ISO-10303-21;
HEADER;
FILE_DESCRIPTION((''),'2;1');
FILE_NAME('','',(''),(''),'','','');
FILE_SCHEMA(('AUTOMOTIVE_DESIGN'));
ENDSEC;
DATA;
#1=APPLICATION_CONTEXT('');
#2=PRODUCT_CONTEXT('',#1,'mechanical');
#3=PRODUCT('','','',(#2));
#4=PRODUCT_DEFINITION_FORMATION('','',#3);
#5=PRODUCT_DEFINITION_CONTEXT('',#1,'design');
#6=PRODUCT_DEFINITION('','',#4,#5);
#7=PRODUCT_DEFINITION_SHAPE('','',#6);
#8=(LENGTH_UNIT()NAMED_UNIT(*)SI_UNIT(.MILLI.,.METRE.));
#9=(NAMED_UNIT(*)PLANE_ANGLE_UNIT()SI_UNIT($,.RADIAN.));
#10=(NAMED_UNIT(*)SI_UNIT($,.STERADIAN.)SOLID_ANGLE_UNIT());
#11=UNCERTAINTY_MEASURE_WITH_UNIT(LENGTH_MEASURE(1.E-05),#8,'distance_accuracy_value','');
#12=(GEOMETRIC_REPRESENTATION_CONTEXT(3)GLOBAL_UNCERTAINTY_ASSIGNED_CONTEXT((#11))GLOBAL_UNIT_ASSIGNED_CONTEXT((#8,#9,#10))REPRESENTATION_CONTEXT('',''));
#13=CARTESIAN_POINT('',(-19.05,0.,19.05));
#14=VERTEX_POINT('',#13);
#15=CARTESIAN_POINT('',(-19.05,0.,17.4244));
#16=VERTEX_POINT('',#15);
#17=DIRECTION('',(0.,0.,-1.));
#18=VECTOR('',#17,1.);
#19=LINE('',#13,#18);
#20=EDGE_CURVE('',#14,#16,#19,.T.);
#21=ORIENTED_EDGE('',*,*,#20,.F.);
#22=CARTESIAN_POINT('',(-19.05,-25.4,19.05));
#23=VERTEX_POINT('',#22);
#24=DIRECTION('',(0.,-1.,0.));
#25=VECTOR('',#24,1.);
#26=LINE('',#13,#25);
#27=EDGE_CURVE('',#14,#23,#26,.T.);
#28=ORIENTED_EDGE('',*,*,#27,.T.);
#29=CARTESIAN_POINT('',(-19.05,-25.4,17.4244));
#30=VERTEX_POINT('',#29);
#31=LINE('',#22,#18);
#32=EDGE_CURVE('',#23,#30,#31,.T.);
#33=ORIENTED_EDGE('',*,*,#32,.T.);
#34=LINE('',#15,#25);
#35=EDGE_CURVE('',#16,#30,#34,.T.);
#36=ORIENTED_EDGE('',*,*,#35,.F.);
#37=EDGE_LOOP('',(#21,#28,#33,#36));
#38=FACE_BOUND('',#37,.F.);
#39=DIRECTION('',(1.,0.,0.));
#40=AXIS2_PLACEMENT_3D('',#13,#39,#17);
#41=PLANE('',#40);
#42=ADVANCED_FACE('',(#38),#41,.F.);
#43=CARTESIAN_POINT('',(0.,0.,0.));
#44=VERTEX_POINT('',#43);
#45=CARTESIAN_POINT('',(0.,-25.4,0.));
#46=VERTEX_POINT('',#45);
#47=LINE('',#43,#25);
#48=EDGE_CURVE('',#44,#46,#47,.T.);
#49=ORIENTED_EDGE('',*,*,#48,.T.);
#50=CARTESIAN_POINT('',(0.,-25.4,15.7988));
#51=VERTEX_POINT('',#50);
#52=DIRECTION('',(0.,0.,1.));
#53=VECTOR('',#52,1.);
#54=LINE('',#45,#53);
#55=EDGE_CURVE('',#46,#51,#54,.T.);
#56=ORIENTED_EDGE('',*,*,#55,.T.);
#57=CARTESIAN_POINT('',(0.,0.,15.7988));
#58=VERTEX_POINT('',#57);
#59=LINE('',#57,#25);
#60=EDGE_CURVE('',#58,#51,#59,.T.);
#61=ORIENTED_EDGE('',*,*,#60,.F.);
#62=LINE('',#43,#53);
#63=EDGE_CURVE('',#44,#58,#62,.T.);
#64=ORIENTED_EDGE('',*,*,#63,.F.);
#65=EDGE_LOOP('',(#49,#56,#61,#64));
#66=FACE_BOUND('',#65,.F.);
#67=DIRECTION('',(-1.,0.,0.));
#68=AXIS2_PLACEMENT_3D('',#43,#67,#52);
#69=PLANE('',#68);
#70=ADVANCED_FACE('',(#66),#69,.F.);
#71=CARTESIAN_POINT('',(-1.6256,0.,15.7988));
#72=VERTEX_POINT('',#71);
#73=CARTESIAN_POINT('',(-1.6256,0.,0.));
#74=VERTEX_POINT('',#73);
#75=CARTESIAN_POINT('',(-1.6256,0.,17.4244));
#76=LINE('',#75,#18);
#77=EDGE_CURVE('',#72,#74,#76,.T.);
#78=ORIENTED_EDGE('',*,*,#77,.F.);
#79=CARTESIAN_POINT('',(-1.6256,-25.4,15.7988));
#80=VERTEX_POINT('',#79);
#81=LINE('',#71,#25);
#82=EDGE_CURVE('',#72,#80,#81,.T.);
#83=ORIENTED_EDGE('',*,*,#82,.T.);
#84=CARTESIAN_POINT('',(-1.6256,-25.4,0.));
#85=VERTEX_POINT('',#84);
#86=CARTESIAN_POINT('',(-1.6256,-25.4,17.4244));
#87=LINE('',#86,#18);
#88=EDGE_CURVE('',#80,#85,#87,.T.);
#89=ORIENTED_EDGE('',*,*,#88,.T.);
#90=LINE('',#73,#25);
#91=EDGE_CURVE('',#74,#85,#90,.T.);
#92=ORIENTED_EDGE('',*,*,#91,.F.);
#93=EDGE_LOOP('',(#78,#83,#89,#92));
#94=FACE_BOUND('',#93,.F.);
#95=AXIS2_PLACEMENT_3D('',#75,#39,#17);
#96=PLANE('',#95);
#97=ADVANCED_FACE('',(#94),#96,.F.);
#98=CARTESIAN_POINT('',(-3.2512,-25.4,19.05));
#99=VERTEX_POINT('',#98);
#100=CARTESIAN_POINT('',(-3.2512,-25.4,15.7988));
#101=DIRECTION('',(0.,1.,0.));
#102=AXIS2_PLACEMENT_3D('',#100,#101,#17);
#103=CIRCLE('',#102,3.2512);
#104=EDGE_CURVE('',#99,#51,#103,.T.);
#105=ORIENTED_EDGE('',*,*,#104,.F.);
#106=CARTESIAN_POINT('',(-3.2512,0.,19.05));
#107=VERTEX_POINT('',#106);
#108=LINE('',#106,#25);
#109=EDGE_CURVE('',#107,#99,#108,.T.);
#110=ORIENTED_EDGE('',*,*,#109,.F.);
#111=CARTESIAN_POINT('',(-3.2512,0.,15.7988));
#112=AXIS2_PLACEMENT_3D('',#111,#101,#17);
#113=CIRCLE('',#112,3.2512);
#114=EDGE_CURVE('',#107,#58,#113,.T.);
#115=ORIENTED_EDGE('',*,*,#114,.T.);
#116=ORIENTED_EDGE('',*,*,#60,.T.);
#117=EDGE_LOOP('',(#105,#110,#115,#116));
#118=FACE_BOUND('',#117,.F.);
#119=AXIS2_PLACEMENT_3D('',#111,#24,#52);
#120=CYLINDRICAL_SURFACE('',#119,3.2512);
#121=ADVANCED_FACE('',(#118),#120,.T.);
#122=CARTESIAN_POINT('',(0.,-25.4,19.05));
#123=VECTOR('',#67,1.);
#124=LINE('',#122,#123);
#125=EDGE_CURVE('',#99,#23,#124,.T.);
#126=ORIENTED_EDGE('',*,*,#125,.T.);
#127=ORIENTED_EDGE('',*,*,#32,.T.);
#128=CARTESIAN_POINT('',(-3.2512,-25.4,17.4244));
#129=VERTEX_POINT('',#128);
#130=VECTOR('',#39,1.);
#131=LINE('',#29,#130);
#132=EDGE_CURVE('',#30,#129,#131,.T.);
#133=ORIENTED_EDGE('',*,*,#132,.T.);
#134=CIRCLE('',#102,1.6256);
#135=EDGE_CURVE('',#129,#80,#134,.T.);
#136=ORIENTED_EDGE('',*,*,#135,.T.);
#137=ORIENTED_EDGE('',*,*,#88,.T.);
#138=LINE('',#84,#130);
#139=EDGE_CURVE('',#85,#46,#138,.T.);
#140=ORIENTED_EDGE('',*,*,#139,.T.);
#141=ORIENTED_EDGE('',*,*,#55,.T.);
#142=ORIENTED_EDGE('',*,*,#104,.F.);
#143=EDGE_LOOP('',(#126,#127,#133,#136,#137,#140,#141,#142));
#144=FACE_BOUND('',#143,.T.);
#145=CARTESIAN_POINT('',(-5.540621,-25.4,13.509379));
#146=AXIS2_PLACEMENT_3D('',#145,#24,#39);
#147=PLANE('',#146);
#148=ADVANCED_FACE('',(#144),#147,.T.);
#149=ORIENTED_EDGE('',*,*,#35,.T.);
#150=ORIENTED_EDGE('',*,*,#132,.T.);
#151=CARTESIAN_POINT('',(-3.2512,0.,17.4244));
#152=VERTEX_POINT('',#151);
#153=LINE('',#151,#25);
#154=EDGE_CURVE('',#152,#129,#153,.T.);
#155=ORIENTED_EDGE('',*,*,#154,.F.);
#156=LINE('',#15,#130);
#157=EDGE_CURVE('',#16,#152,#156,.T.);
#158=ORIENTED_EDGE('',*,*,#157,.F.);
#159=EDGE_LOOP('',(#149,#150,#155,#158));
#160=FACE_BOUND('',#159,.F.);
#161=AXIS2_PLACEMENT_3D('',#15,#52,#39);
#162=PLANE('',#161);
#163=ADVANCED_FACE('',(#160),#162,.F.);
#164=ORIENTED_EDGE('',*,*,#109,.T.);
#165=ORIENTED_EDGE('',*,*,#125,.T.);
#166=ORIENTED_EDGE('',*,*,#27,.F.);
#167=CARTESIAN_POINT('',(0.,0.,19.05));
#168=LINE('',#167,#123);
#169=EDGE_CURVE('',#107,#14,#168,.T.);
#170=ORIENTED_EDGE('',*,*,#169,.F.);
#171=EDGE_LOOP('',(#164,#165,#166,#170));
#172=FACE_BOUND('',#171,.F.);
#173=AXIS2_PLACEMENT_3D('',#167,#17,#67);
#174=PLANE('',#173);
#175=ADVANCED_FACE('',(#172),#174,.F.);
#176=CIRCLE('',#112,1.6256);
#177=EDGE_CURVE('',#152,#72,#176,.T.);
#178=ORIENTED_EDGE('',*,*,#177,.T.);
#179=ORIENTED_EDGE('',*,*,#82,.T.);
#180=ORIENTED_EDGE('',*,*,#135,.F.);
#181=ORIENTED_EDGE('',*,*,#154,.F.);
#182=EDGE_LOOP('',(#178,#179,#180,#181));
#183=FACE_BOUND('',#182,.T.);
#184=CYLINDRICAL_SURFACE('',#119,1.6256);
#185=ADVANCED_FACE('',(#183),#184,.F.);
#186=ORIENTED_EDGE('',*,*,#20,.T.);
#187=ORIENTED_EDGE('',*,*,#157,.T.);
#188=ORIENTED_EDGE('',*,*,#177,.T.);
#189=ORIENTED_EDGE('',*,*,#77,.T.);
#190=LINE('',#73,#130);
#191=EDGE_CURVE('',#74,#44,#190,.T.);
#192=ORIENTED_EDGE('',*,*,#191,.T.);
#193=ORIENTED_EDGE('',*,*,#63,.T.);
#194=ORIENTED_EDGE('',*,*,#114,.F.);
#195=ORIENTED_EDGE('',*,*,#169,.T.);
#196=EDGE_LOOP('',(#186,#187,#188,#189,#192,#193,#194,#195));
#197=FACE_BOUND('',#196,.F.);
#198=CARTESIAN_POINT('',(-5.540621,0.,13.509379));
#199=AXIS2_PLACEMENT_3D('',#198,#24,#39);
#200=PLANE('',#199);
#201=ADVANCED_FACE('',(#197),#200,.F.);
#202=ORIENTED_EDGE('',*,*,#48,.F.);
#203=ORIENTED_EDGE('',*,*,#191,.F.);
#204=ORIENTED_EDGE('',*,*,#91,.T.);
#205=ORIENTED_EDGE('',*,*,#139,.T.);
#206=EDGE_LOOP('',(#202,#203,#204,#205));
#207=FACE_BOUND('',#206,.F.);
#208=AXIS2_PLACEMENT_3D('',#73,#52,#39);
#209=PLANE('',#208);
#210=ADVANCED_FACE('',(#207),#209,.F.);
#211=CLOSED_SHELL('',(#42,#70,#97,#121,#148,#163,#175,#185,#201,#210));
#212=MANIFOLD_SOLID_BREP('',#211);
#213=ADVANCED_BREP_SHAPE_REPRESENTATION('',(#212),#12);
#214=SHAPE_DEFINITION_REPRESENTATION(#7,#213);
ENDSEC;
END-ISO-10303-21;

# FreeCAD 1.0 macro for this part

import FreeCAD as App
import Part
import Sketcher
Q = App.Units.Quantity


def edges_at(feature, points):
    """Names of the edges that pass closest to the given points."""
    edges = feature.Shape.Edges
    near = lambda p: min(range(len(edges)), key=lambda i: edges[i].distToShape(Part.Vertex(*p))[0])
    return sorted({f"Edge{near(p) + 1}" for p in points})

doc = App.newDocument("Part")
body = doc.addObject("PartDesign::Body", "Body")

sketch1 = body.newObject("Sketcher::SketchObject", "Sketch")
sketch1.AttachmentSupport = (doc.getObject("XZ_Plane"), [""])
sketch1.MapMode = "FlatFace"
sketch1.addGeometry([
    Part.LineSegment(App.Vector(-1.6256, 0, 0), App.Vector(0, 0, 0)),
    Part.LineSegment(App.Vector(0, 0, 0), App.Vector(0, 19.05, 0)),
    Part.LineSegment(App.Vector(0, 19.05, 0), App.Vector(-19.05, 19.05, 0)),
    Part.LineSegment(App.Vector(-19.05, 19.05, 0), App.Vector(-19.05, 17.4244, 0)),
    Part.LineSegment(App.Vector(-19.05, 17.4244, 0), App.Vector(-1.6256, 17.4244, 0)),
    Part.LineSegment(App.Vector(-1.6256, 17.4244, 0), App.Vector(-1.6256, 0, 0)),
], False)
sketch1.addConstraint([
    Sketcher.Constraint("Coincident", 0, 2, 1, 1),
    Sketcher.Constraint("Coincident", 1, 2, 2, 1),
    Sketcher.Constraint("Coincident", 2, 2, 3, 1),
    Sketcher.Constraint("Coincident", 3, 2, 4, 1),
    Sketcher.Constraint("Coincident", 4, 2, 5, 1),
    Sketcher.Constraint("Coincident", 5, 2, 0, 1),
    Sketcher.Constraint("Horizontal", 0),
    Sketcher.Constraint("Vertical", 1),
    Sketcher.Constraint("Horizontal", 2),
    Sketcher.Constraint("Vertical", 3),
    Sketcher.Constraint("Horizontal", 4),
    Sketcher.Constraint("Vertical", 5),
    Sketcher.Constraint("Coincident", 0, 2, -1, 1),
    Sketcher.Constraint("Equal", 2, 1),
    Sketcher.Constraint("Equal", 0, 3),
    Sketcher.Constraint("DistanceX", 2, 2, 2, 1, Q("0.75 in")),
    Sketcher.Constraint("DistanceX", 0, 1, 0, 2, Q("0.064 in")),
])
pad1 = body.newObject("PartDesign::Pad", "Pad")
pad1.Profile = sketch1
pad1.Length = Q("1 in")
doc.recompute()

fillet = body.newObject("PartDesign::Fillet", "Fillet")
fillet.Base = (pad1, edges_at(pad1, [(-1.626, -12.7, 17.424)]))
fillet.Radius = Q("0.064 in")
doc.recompute()

fillet2 = body.newObject("PartDesign::Fillet", "Fillet001")
fillet2.Base = (fillet, edges_at(fillet, [(0, -12.7, 19.05)]))
fillet2.Radius = Q("0.128 in")

doc.recompute()
